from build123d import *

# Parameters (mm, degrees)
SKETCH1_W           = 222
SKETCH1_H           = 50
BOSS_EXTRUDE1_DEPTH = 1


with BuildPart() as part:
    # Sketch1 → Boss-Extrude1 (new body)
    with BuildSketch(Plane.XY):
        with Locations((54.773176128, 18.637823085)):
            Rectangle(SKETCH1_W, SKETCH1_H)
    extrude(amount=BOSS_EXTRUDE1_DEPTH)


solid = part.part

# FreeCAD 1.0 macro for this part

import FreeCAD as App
import Part
import Sketcher

V = App.Vector

doc = App.newDocument("Part")
body = doc.addObject("PartDesign::Body", "Body")

sketch1 = body.newObject("Sketcher::SketchObject", "Sketch")
sketch1.AttachmentSupport = (doc.getObject("XY_Plane"), [""])
sketch1.MapMode = "FlatFace"
sketch1.addGeometry(Part.LineSegment(V(-56, 44, 0), V(-56, -6, 0)), False)
sketch1.addGeometry(Part.LineSegment(V(-56, -6, 0), V(166, -6, 0)), False)
sketch1.addGeometry(Part.LineSegment(V(166, -6, 0), V(166, 44, 0)), False)
sketch1.addGeometry(Part.LineSegment(V(166, 44, 0), V(-56, 44, 0)), False)
sketch1.addConstraint(Sketcher.Constraint("Coincident", 0, 2, 1, 1))
sketch1.addConstraint(Sketcher.Constraint("Coincident", 1, 2, 2, 1))
sketch1.addConstraint(Sketcher.Constraint("Coincident", 2, 2, 3, 1))
sketch1.addConstraint(Sketcher.Constraint("Coincident", 3, 2, 0, 1))
sketch1.addConstraint(Sketcher.Constraint("Vertical", 0))
sketch1.addConstraint(Sketcher.Constraint("Horizontal", 1))
sketch1.addConstraint(Sketcher.Constraint("Vertical", 2))
sketch1.addConstraint(Sketcher.Constraint("Horizontal", 3))
sketch1.addConstraint(Sketcher.Constraint("DistanceX", 1, 1, 1, 2, 222.0))
sketch1.addConstraint(Sketcher.Constraint("DistanceY", 0, 2, 0, 1, 50.0))
sketch1.addConstraint(Sketcher.Constraint("DistanceX", 0, 2, -1, 1, 56.226824))
sketch1.addConstraint(Sketcher.Constraint("DistanceY", 0, 2, -1, 1, 6.362177))
pad1 = body.newObject("PartDesign::Pad", "Pad")
pad1.Profile = sketch1
pad1.Length = 1

doc.recompute()
